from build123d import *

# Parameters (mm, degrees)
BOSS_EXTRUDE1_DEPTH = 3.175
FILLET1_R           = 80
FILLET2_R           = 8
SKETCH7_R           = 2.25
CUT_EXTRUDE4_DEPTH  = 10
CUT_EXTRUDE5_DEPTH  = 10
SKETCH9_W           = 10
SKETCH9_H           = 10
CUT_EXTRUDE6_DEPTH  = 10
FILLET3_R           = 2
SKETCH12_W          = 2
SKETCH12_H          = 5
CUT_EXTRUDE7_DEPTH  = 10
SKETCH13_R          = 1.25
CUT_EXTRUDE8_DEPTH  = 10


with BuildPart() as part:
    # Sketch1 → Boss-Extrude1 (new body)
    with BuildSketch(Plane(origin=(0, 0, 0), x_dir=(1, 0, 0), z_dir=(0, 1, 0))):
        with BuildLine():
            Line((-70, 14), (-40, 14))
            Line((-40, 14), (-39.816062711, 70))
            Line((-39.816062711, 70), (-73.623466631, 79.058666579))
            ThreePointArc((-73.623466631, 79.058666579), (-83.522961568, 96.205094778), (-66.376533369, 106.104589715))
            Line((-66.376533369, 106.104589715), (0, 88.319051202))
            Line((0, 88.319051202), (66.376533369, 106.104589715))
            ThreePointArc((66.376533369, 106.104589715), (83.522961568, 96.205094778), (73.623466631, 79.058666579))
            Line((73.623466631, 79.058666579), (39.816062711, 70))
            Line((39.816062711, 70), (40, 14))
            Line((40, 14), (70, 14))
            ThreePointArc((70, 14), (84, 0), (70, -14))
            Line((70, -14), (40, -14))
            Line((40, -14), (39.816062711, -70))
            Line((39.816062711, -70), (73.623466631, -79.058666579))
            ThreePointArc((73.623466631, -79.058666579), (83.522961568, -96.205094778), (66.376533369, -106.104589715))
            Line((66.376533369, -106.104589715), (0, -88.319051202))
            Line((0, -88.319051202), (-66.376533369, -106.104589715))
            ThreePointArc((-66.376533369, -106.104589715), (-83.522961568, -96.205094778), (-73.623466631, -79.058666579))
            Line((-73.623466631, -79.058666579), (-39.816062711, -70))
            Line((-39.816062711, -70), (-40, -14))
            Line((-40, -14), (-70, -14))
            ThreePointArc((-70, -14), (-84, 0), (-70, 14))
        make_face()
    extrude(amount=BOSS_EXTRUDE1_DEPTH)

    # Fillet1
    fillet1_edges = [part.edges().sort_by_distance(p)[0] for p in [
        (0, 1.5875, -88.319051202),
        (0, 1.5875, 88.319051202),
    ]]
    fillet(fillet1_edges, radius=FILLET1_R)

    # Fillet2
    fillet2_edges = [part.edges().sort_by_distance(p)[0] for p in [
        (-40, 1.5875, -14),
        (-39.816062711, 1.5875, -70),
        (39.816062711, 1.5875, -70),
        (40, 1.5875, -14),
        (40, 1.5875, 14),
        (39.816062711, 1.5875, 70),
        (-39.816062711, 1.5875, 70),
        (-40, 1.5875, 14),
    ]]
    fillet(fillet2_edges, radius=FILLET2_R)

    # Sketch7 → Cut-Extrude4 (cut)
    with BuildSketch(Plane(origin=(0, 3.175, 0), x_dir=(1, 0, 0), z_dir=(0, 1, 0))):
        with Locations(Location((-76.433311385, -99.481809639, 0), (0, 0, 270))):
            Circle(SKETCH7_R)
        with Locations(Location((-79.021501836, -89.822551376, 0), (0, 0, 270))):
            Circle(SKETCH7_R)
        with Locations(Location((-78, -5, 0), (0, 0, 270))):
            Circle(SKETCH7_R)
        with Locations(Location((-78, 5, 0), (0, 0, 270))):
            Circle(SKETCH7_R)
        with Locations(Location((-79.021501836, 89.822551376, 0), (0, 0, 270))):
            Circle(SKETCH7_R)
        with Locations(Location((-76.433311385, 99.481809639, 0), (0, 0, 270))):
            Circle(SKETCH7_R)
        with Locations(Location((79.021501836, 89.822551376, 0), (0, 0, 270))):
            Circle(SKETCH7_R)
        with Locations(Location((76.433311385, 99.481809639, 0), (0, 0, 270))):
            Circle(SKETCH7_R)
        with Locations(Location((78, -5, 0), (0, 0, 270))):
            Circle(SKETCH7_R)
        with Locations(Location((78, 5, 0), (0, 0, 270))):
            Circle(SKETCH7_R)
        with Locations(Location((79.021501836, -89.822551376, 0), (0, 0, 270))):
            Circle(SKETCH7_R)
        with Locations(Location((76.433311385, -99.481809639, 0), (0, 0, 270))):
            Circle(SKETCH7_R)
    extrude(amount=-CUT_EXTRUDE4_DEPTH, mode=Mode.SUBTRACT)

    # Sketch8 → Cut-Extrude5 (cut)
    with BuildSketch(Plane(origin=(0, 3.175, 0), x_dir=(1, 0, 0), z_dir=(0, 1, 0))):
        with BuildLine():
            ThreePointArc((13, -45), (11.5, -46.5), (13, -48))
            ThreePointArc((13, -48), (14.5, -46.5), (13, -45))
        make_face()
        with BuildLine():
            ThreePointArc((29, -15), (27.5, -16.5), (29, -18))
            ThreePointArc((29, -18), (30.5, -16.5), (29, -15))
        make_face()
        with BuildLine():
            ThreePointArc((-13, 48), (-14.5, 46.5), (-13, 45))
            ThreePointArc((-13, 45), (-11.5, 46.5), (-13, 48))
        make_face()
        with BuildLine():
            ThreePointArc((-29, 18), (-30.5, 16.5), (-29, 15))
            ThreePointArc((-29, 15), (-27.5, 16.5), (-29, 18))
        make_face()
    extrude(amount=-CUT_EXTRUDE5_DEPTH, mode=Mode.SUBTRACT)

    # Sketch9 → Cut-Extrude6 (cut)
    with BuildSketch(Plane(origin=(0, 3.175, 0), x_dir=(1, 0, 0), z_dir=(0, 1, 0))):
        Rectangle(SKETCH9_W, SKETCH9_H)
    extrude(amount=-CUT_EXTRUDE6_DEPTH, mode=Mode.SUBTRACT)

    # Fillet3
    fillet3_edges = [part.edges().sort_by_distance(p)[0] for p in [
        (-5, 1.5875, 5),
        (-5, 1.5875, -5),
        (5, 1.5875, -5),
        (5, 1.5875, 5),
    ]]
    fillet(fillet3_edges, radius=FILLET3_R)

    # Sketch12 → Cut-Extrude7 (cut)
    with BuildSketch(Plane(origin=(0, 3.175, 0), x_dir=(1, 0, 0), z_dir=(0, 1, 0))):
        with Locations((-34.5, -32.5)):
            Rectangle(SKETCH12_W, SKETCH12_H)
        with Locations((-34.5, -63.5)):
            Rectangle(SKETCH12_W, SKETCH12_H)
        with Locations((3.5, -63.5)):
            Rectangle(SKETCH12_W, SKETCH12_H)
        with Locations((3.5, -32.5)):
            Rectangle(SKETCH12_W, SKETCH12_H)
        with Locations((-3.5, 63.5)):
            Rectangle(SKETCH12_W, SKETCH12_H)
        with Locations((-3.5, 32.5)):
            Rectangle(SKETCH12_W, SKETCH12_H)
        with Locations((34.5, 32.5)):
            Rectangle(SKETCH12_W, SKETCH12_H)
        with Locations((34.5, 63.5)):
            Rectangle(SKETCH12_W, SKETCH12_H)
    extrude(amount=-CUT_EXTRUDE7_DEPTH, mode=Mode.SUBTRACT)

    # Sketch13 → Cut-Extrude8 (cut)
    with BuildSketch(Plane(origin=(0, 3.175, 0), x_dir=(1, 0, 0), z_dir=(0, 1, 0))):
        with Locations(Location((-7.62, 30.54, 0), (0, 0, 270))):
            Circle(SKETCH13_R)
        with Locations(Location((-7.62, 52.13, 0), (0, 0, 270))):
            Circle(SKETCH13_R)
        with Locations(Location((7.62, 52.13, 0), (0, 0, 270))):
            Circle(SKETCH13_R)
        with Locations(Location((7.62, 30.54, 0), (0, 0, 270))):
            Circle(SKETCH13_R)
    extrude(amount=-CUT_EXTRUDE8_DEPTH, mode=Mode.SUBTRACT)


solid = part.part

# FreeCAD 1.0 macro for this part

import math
import FreeCAD as App
import Part
import Sketcher
from FreeCAD import Vector
Q = App.Units.Quantity


def edges_at(feature, points):
    """Names of the edges that pass closest to the given points."""
    edges = feature.Shape.Edges
    near = lambda p: min(range(len(edges)), key=lambda i: edges[i].distToShape(Part.Vertex(*p))[0])
    return sorted({f"Edge{near(p) + 1}" for p in points})

doc = App.newDocument("Part")
body = doc.addObject("PartDesign::Body", "Body")

# Sketch on XZ plane
sketch1 = doc.addObject("Sketcher::SketchObject", "Sketch")
body.addObject(sketch1)
sketch1.AttachmentSupport = (doc.XZ_Plane, [""])
sketch1.MapMode = "FlatFace"
sketch1.addGeometry([
    Part.LineSegment(Vector(-40, -14, 0), Vector(-70, -14, 0)),  # 0
    Part.ArcOfCircle(Part.Circle(Vector(-70, 0, 0), Vector(0, 0, 1), 14), math.radians(90), math.radians(270)),  # 1
    Part.LineSegment(Vector(-70, 14, 0), Vector(-40, 14, 0)),  # 2
    Part.LineSegment(Vector(-40, 14, 0), Vector(-40, 70, 0)),  # 3
    Part.LineSegment(Vector(-40, 70, 0), Vector(-74, 79, 0)),  # 4
    Part.ArcOfCircle(Part.Circle(Vector(-70, 93, 0), Vector(0, 0, 1), 14), math.radians(75), math.radians(255)),  # 5
    Part.LineSegment(Vector(-66, 106, 0), Vector(0, 88, 0)),  # 6
    Part.LineSegment(Vector(0, 88, 0), Vector(66, 106, 0)),  # 7
    Part.ArcOfCircle(Part.Circle(Vector(70, 93, 0), Vector(0, 0, 1), 14), math.radians(-75), math.radians(105)),  # 8
    Part.LineSegment(Vector(74, 79, 0), Vector(40, 70, 0)),  # 9
    Part.LineSegment(Vector(40, 70, 0), Vector(40, 14, 0)),  # 10
    Part.LineSegment(Vector(40, 14, 0), Vector(70, 14, 0)),  # 11
    Part.ArcOfCircle(Part.Circle(Vector(70, 0, 0), Vector(0, 0, 1), 14), math.radians(-90), math.radians(90)),  # 12
    Part.LineSegment(Vector(70, -14, 0), Vector(40, -14, 0)),  # 13
    Part.LineSegment(Vector(40, -14, 0), Vector(40, -70, 0)),  # 14
    Part.LineSegment(Vector(40, -70, 0), Vector(74, -79, 0)),  # 15
    Part.ArcOfCircle(Part.Circle(Vector(70, -93, 0), Vector(0, 0, 1), 14), math.radians(-105), math.radians(75)),  # 16
    Part.LineSegment(Vector(66, -106, 0), Vector(0, -88, 0)),  # 17
    Part.LineSegment(Vector(0, -88, 0), Vector(-66, -106, 0)),  # 18
    Part.ArcOfCircle(Part.Circle(Vector(-70, -93, 0), Vector(0, 0, 1), 14), math.radians(105), math.radians(285)),  # 19
    Part.LineSegment(Vector(-74, -79, 0), Vector(-40, -70, 0)),  # 20
    Part.LineSegment(Vector(-40, -70, 0), Vector(-40, -14, 0)),  # 21
], False)
sketch1.addConstraint([
    Sketcher.Constraint("Tangent", 0, 2, 1, 2),
    Sketcher.Constraint("Tangent", 1, 1, 2, 1),
    Sketcher.Constraint("Coincident", 2, 2, 3, 1),
    Sketcher.Constraint("Coincident", 3, 2, 4, 1),
    Sketcher.Constraint("Tangent", 4, 2, 5, 2),
    Sketcher.Constraint("Tangent", 5, 1, 6, 1),
    Sketcher.Constraint("Coincident", 6, 2, 7, 1),
    Sketcher.Constraint("Tangent", 7, 2, 8, 2),
    Sketcher.Constraint("Tangent", 8, 1, 9, 1),
    Sketcher.Constraint("Coincident", 9, 2, 10, 1),
    Sketcher.Constraint("Coincident", 10, 2, 11, 1),
    Sketcher.Constraint("Tangent", 11, 2, 12, 2),
    Sketcher.Constraint("Tangent", 12, 1, 13, 1),
    Sketcher.Constraint("Coincident", 13, 2, 14, 1),
    Sketcher.Constraint("Coincident", 14, 2, 15, 1),
    Sketcher.Constraint("Tangent", 15, 2, 16, 2),
    Sketcher.Constraint("Tangent", 16, 1, 17, 1),
    Sketcher.Constraint("Coincident", 17, 2, 18, 1),
    Sketcher.Constraint("Tangent", 18, 2, 19, 2),
    Sketcher.Constraint("Tangent", 19, 1, 20, 1),
    Sketcher.Constraint("Coincident", 20, 2, 21, 1),
    Sketcher.Constraint("Coincident", 21, 2, 0, 1),
    Sketcher.Constraint("Horizontal", 0),
    Sketcher.Constraint("Horizontal", 2),
    Sketcher.Constraint("Horizontal", 11),
    Sketcher.Constraint("Horizontal", 13),
    Sketcher.Constraint("Equal", 1, 5),
    Sketcher.Constraint("Equal", 5, 8),
    Sketcher.Constraint("Equal", 8, 12),
    Sketcher.Constraint("Equal", 12, 16),
    Sketcher.Constraint("Equal", 16, 19),
    Sketcher.Constraint("Symmetric", 1, 3, 12, 3, -1, 1),
    Sketcher.Constraint("Symmetric", 5, 3, 16, 3, -1, 1),
    Sketcher.Constraint("Symmetric", 8, 3, 19, 3, -1, 1),
    Sketcher.Constraint("Symmetric", 3, 2, 14, 2, -1, 1),
    Sketcher.Constraint("Symmetric", 6, 2, 17, 2, -1, 1),
    Sketcher.Constraint("Symmetric", 9, 2, 20, 2, -1, 1),
    Sketcher.Constraint("Symmetric", 5, 3, 8, 3, -2),
    Sketcher.Constraint("Symmetric", 3, 2, 9, 2, -2),
    Sketcher.Constraint("Symmetric", 2, 2, 10, 2, -2),
    Sketcher.Constraint("PointOnObject", 6, 2, -2),
    Sketcher.Constraint("Parallel", 4, 6),
    Sketcher.Constraint("Parallel", 3, 14),
    Sketcher.Constraint("Parallel", 10, 21),
    Sketcher.Constraint("Vertical", 1, 3, 5, 3),
    Sketcher.Constraint("Radius", 1, Q("14 mm")),
    Sketcher.Constraint("DistanceX", 0, 2, 0, 1, Q("30 mm")),
    Sketcher.Constraint("Angle", 4, Q("165 deg")),
    Sketcher.Constraint("Distance", 4, Q("35 mm")),
    Sketcher.Constraint("DistanceX", 1, 3, -1, 1, Q("70 mm")),
    Sketcher.Constraint("DistanceY", -1, 1, 3, 2, Q("70 mm")),
])
pad1 = doc.addObject("PartDesign::Pad", "Pad")
body.addObject(pad1)
pad1.Profile = sketch1
pad1.Length = 3.175
pad1.Reversed = True
doc.recompute()

fillet = doc.addObject("PartDesign::Fillet", "Fillet")
body.addObject(fillet)
fillet.Base = (pad1, edges_at(pad1, [(0, 1.587, -88.319), (0, 1.587, 88.319)]))
fillet.Radius = 80
doc.recompute()

fillet2 = doc.addObject("PartDesign::Fillet", "Fillet001")
body.addObject(fillet2)
fillet2.Base = (fillet, edges_at(fillet, [
    (-40, 1.587, -14),
    (-39.816, 1.587, -70),
    (39.816, 1.587, -70),
    (40, 1.587, -14),
    (40, 1.587, 14),
    (39.816, 1.587, 70),
    (-39.816, 1.587, 70),
    (-40, 1.587, 14),
]))
fillet2.Radius = 8

# Sketch on XZ plane
sketch2 = doc.addObject("Sketcher::SketchObject", "Sketch001")
body.addObject(sketch2)
sketch2.AttachmentSupport = (doc.XZ_Plane, [""])
sketch2.MapMode = "FlatFace"
sketch2.AttachmentOffset = App.Placement(Vector(0, 0, -3.175), App.Rotation())
sketch2.addGeometry([
    Part.Circle(Vector(-76.4, 99.5, 0), Vector(0, 0, 1), 2.2),  # 0
    Part.Circle(Vector(-79, 89.8, 0), Vector(0, 0, 1), 2.2),  # 1
    Part.Circle(Vector(-78, 5, 0), Vector(0, 0, 1), 2.2),  # 2
    Part.Circle(Vector(-78, -5, 0), Vector(0, 0, 1), 2.2),  # 3
    Part.Circle(Vector(-79, -89.8, 0), Vector(0, 0, 1), 2.2),  # 4
    Part.Circle(Vector(-76.4, -99.5, 0), Vector(0, 0, 1), 2.2),  # 5
    Part.Circle(Vector(79, -89.8, 0), Vector(0, 0, 1), 2.2),  # 6
    Part.Circle(Vector(76.4, -99.5, 0), Vector(0, 0, 1), 2.2),  # 7
    Part.Circle(Vector(78, 5, 0), Vector(0, 0, 1), 2.2),  # 8
    Part.Circle(Vector(78, -5, 0), Vector(0, 0, 1), 2.2),  # 9
    Part.Circle(Vector(79, 89.8, 0), Vector(0, 0, 1), 2.2),  # 10
    Part.Circle(Vector(76.4, 99.5, 0), Vector(0, 0, 1), 2.2),  # 11
], False)
sketch2.addConstraint([
    Sketcher.Constraint("Equal", 0, 1),
    Sketcher.Constraint("Equal", 1, 2),
    Sketcher.Constraint("Equal", 2, 3),
    Sketcher.Constraint("Equal", 3, 4),
    Sketcher.Constraint("Equal", 4, 5),
    Sketcher.Constraint("Equal", 5, 6),
    Sketcher.Constraint("Equal", 6, 7),
    Sketcher.Constraint("Equal", 7, 8),
    Sketcher.Constraint("Equal", 8, 9),
    Sketcher.Constraint("Equal", 9, 10),
    Sketcher.Constraint("Equal", 10, 11),
    Sketcher.Constraint("Symmetric", 1, 3, 6, 3, -1, 1),
    Sketcher.Constraint("Symmetric", 0, 3, 7, 3, -1, 1),
    Sketcher.Constraint("Symmetric", 3, 3, 8, 3, -1, 1),
    Sketcher.Constraint("Symmetric", 2, 3, 9, 3, -1, 1),
    Sketcher.Constraint("Symmetric", 4, 3, 10, 3, -1, 1),
    Sketcher.Constraint("Symmetric", 5, 3, 11, 3, -1, 1),
    Sketcher.Constraint("Symmetric", 4, 3, 6, 3, -2),
    Sketcher.Constraint("Symmetric", 5, 3, 7, 3, -2),
    Sketcher.Constraint("Symmetric", 2, 3, 8, 3, -2),
    Sketcher.Constraint("Diameter", 0, Q("4.5 mm")),
    Sketcher.Constraint("DistanceX", 2, 3, -1, 1, Q("78 mm")),
    Sketcher.Constraint("DistanceY", -1, 1, 2, 3, Q("5 mm")),
    Sketcher.Constraint("DistanceX", 1, 3, -1, 1, Q("79.021502 mm")),
    Sketcher.Constraint("DistanceX", 0, 3, -1, 1, Q("76.433311 mm")),
    Sketcher.Constraint("DistanceY", -1, 1, 0, 3, Q("99.48181 mm")),
    Sketcher.Constraint("DistanceY", -1, 1, 1, 3, Q("89.822551 mm")),
])
pocket1 = doc.addObject("PartDesign::Pocket", "Pocket")
body.addObject(pocket1)
pocket1.Profile = sketch2
pocket1.Length = 10
pocket1.Reversed = True

# Sketch on XZ plane
sketch3 = doc.addObject("Sketcher::SketchObject", "Sketch002")
body.addObject(sketch3)
sketch3.AttachmentSupport = (doc.XZ_Plane, [""])
sketch3.MapMode = "FlatFace"
sketch3.AttachmentOffset = App.Placement(Vector(0, 0, -3.175), App.Rotation())
sketch3.addGeometry([
    Part.Circle(Vector(13, 46.5, 0), Vector(0, 0, 1), 1.5),
    Part.Circle(Vector(29, 16.5, 0), Vector(0, 0, 1), 1.5),
    Part.Circle(Vector(-13, -46.5, 0), Vector(0, 0, 1), 1.5),
    Part.Circle(Vector(-29, -16.5, 0), Vector(0, 0, 1), 1.5),
], False)
sketch3.addConstraint([
    Sketcher.Constraint("Equal", 0, 1),
    Sketcher.Constraint("Equal", 1, 2),
    Sketcher.Constraint("Equal", 2, 3),
    Sketcher.Constraint("Symmetric", 0, 3, 2, 3, -1, 1),
    Sketcher.Constraint("Symmetric", 1, 3, 3, 3, -1, 1),
    Sketcher.Constraint("Diameter", 0, Q("3 mm")),
    Sketcher.Constraint("DistanceX", -1, 1, 0, 3, Q("13 mm")),
    Sketcher.Constraint("DistanceX", -1, 1, 1, 3, Q("29 mm")),
    Sketcher.Constraint("DistanceY", 1, 3, 0, 3, Q("30 mm")),
    Sketcher.Constraint("DistanceY", 2, 3, 1, 3, Q("63 mm")),
])
pocket2 = doc.addObject("PartDesign::Pocket", "Pocket001")
body.addObject(pocket2)
pocket2.Profile = sketch3
pocket2.Length = 10
pocket2.Reversed = True

# Sketch on XZ plane
sketch4 = doc.addObject("Sketcher::SketchObject", "Sketch003")
body.addObject(sketch4)
sketch4.AttachmentSupport = (doc.XZ_Plane, [""])
sketch4.MapMode = "FlatFace"
sketch4.AttachmentOffset = App.Placement(Vector(0, 0, -3.175), App.Rotation())
sketch4.addGeometry([
    Part.LineSegment(Vector(-5, -5, 0), Vector(-5, 5, 0)),
    Part.LineSegment(Vector(-5, 5, 0), Vector(5, 5, 0)),
    Part.LineSegment(Vector(5, 5, 0), Vector(5, -5, 0)),
    Part.LineSegment(Vector(5, -5, 0), Vector(-5, -5, 0)),
], False)
sketch4.addConstraint([
    Sketcher.Constraint("Coincident", 0, 2, 1, 1),
    Sketcher.Constraint("Coincident", 1, 2, 2, 1),
    Sketcher.Constraint("Coincident", 2, 2, 3, 1),
    Sketcher.Constraint("Coincident", 3, 2, 0, 1),
    Sketcher.Constraint("Vertical", 0),
    Sketcher.Constraint("Horizontal", 1),
    Sketcher.Constraint("Vertical", 2),
    Sketcher.Constraint("Horizontal", 3),
    Sketcher.Constraint("Symmetric", 0, 2, 2, 2, -1, 1),
    Sketcher.Constraint("Equal", 3, 0),
    Sketcher.Constraint("DistanceX", 1, 1, 1, 2, Q("10 mm")),
])
pocket3 = doc.addObject("PartDesign::Pocket", "Pocket002")
body.addObject(pocket3)
pocket3.Profile = sketch4
pocket3.Length = 10
pocket3.Reversed = True
doc.recompute()

fillet3 = doc.addObject("PartDesign::Fillet", "Fillet002")
body.addObject(fillet3)
fillet3.Base = (pocket3, edges_at(pocket3, [
    (-5, 1.587, 5),
    (-5, 1.587, -5),
    (5, 1.587, -5),
    (5, 1.587, 5),
]))
fillet3.Radius = 2

# Sketch on XZ plane
sketch5 = doc.addObject("Sketcher::SketchObject", "Sketch004")
body.addObject(sketch5)
sketch5.AttachmentSupport = (doc.XZ_Plane, [""])
sketch5.MapMode = "FlatFace"
sketch5.AttachmentOffset = App.Placement(Vector(0, 0, -3.175), App.Rotation())
sketch5.addGeometry([
    Part.LineSegment(Vector(-35.5, 30, 0), Vector(-35.5, 35, 0)),  # 0
    Part.LineSegment(Vector(-35.5, 35, 0), Vector(-33.5, 35, 0)),  # 1
    Part.LineSegment(Vector(-33.5, 35, 0), Vector(-33.5, 30, 0)),  # 2
    Part.LineSegment(Vector(-33.5, 30, 0), Vector(-35.5, 30, 0)),  # 3
    Part.LineSegment(Vector(-35.5, 61, 0), Vector(-35.5, 66, 0)),  # 4
    Part.LineSegment(Vector(-35.5, 66, 0), Vector(-33.5, 66, 0)),  # 5
    Part.LineSegment(Vector(-33.5, 66, 0), Vector(-33.5, 61, 0)),  # 6
    Part.LineSegment(Vector(-33.5, 61, 0), Vector(-35.5, 61, 0)),  # 7
    Part.LineSegment(Vector(2.5, 61, 0), Vector(2.5, 66, 0)),  # 8
    Part.LineSegment(Vector(2.5, 66, 0), Vector(4.5, 66, 0)),  # 9
    Part.LineSegment(Vector(4.5, 66, 0), Vector(4.5, 61, 0)),  # 10
    Part.LineSegment(Vector(4.5, 61, 0), Vector(2.5, 61, 0)),  # 11
    Part.LineSegment(Vector(2.5, 30, 0), Vector(2.5, 35, 0)),  # 12
    Part.LineSegment(Vector(2.5, 35, 0), Vector(4.5, 35, 0)),  # 13
    Part.LineSegment(Vector(4.5, 35, 0), Vector(4.5, 30, 0)),  # 14
    Part.LineSegment(Vector(4.5, 30, 0), Vector(2.5, 30, 0)),  # 15
    Part.LineSegment(Vector(-4.5, -66, 0), Vector(-4.5, -61, 0)),  # 16
    Part.LineSegment(Vector(-4.5, -61, 0), Vector(-2.5, -61, 0)),  # 17
    Part.LineSegment(Vector(-2.5, -61, 0), Vector(-2.5, -66, 0)),  # 18
    Part.LineSegment(Vector(-2.5, -66, 0), Vector(-4.5, -66, 0)),  # 19
    Part.LineSegment(Vector(-4.5, -35, 0), Vector(-4.5, -30, 0)),  # 20
    Part.LineSegment(Vector(-4.5, -30, 0), Vector(-2.5, -30, 0)),  # 21
    Part.LineSegment(Vector(-2.5, -30, 0), Vector(-2.5, -35, 0)),  # 22
    Part.LineSegment(Vector(-2.5, -35, 0), Vector(-4.5, -35, 0)),  # 23
    Part.LineSegment(Vector(33.5, -35, 0), Vector(33.5, -30, 0)),  # 24
    Part.LineSegment(Vector(33.5, -30, 0), Vector(35.5, -30, 0)),  # 25
    Part.LineSegment(Vector(35.5, -30, 0), Vector(35.5, -35, 0)),  # 26
    Part.LineSegment(Vector(35.5, -35, 0), Vector(33.5, -35, 0)),  # 27
    Part.LineSegment(Vector(33.5, -66, 0), Vector(33.5, -61, 0)),  # 28
    Part.LineSegment(Vector(33.5, -61, 0), Vector(35.5, -61, 0)),  # 29
    Part.LineSegment(Vector(35.5, -61, 0), Vector(35.5, -66, 0)),  # 30
    Part.LineSegment(Vector(35.5, -66, 0), Vector(33.5, -66, 0)),  # 31
], False)
sketch5.addConstraint([
    Sketcher.Constraint("Coincident", 0, 2, 1, 1),
    Sketcher.Constraint("Coincident", 1, 2, 2, 1),
    Sketcher.Constraint("Coincident", 2, 2, 3, 1),
    Sketcher.Constraint("Coincident", 3, 2, 0, 1),
    Sketcher.Constraint("Coincident", 4, 2, 5, 1),
    Sketcher.Constraint("Coincident", 5, 2, 6, 1),
    Sketcher.Constraint("Coincident", 6, 2, 7, 1),
    Sketcher.Constraint("Coincident", 7, 2, 4, 1),
    Sketcher.Constraint("Coincident", 8, 2, 9, 1),
    Sketcher.Constraint("Coincident", 9, 2, 10, 1),
    Sketcher.Constraint("Coincident", 10, 2, 11, 1),
    Sketcher.Constraint("Coincident", 11, 2, 8, 1),
    Sketcher.Constraint("Coincident", 12, 2, 13, 1),
    Sketcher.Constraint("Coincident", 13, 2, 14, 1),
    Sketcher.Constraint("Coincident", 14, 2, 15, 1),
    Sketcher.Constraint("Coincident", 15, 2, 12, 1),
    Sketcher.Constraint("Coincident", 16, 2, 17, 1),
    Sketcher.Constraint("Coincident", 17, 2, 18, 1),
    Sketcher.Constraint("Coincident", 18, 2, 19, 1),
    Sketcher.Constraint("Coincident", 19, 2, 16, 1),
    Sketcher.Constraint("Coincident", 20, 2, 21, 1),
    Sketcher.Constraint("Coincident", 21, 2, 22, 1),
    Sketcher.Constraint("Coincident", 22, 2, 23, 1),
    Sketcher.Constraint("Coincident", 23, 2, 20, 1),
    Sketcher.Constraint("Coincident", 24, 2, 25, 1),
    Sketcher.Constraint("Coincident", 25, 2, 26, 1),
    Sketcher.Constraint("Coincident", 26, 2, 27, 1),
    Sketcher.Constraint("Coincident", 27, 2, 24, 1),
    Sketcher.Constraint("Coincident", 28, 2, 29, 1),
    Sketcher.Constraint("Coincident", 29, 2, 30, 1),
    Sketcher.Constraint("Coincident", 30, 2, 31, 1),
    Sketcher.Constraint("Coincident", 31, 2, 28, 1),
    Sketcher.Constraint("Vertical", 0),
    Sketcher.Constraint("Horizontal", 1),
    Sketcher.Constraint("Vertical", 2),
    Sketcher.Constraint("Horizontal", 3),
    Sketcher.Constraint("Vertical", 4),
    Sketcher.Constraint("Horizontal", 5),
    Sketcher.Constraint("Vertical", 6),
    Sketcher.Constraint("Horizontal", 7),
    Sketcher.Constraint("Vertical", 8),
    Sketcher.Constraint("Horizontal", 9),
    Sketcher.Constraint("Vertical", 10),
    Sketcher.Constraint("Horizontal", 11),
    Sketcher.Constraint("Vertical", 12),
    Sketcher.Constraint("Horizontal", 13),
    Sketcher.Constraint("Vertical", 14),
    Sketcher.Constraint("Horizontal", 15),
    Sketcher.Constraint("Vertical", 16),
    Sketcher.Constraint("Horizontal", 17),
    Sketcher.Constraint("Vertical", 18),
    Sketcher.Constraint("Horizontal", 19),
    Sketcher.Constraint("Vertical", 20),
    Sketcher.Constraint("Horizontal", 21),
    Sketcher.Constraint("Vertical", 22),
    Sketcher.Constraint("Horizontal", 23),
    Sketcher.Constraint("Vertical", 24),
    Sketcher.Constraint("Horizontal", 25),
    Sketcher.Constraint("Vertical", 26),
    Sketcher.Constraint("Horizontal", 27),
    Sketcher.Constraint("Vertical", 28),
    Sketcher.Constraint("Horizontal", 29),
    Sketcher.Constraint("Vertical", 30),
    Sketcher.Constraint("Horizontal", 31),
    Sketcher.Constraint("Symmetric", 10, 2, 16, 2, -1, 1),
    Sketcher.Constraint("Symmetric", 8, 2, 18, 2, -1, 1),
    Sketcher.Constraint("Symmetric", 14, 2, 20, 2, -1, 1),
    Sketcher.Constraint("Symmetric", 12, 2, 22, 2, -1, 1),
    Sketcher.Constraint("Symmetric", 2, 2, 24, 2, -1, 1),
    Sketcher.Constraint("Symmetric", 0, 2, 26, 2, -1, 1),
    Sketcher.Constraint("Symmetric", 6, 2, 28, 2, -1, 1),
    Sketcher.Constraint("Symmetric", 4, 2, 30, 2, -1, 1),
    Sketcher.Constraint("Horizontal", 5, 2, 8, 2),
    Sketcher.Constraint("Horizontal", 7, 2, 10, 2),
    Sketcher.Constraint("Horizontal", 1, 2, 12, 2),
    Sketcher.Constraint("Horizontal", 3, 2, 14, 2),
    Sketcher.Constraint("Vertical", 3, 2, 4, 2),
    Sketcher.Constraint("Vertical", 2, 2, 5, 2),
    Sketcher.Constraint("Vertical", 11, 2, 12, 2),
    Sketcher.Constraint("Vertical", 10, 2, 13, 2),
    Sketcher.Constraint("Equal", 7, 9),
    Sketcher.Constraint("Equal", 2, 4),
    Sketcher.Constraint("DistanceX", 1, 1, 1, 2, Q("2 mm")),
    Sketcher.Constraint("DistanceY", 0, 1, 0, 2, Q("5 mm")),
    Sketcher.Constraint("DistanceY", -1, 1, 0, 2, Q("35 mm")),
    Sketcher.Constraint("DistanceY", -1, 1, 4, 2, Q("66 mm")),
    Sketcher.Constraint("DistanceX", 5, 2, 8, 2, Q("36 mm")),
    Sketcher.Constraint("DistanceX", 16, 2, 15, 2, Q("7 mm")),
])
pocket4 = doc.addObject("PartDesign::Pocket", "Pocket003")
body.addObject(pocket4)
pocket4.Profile = sketch5
pocket4.Length = 10
pocket4.Reversed = True

# Sketch on XZ plane
sketch6 = doc.addObject("Sketcher::SketchObject", "Sketch005")
body.addObject(sketch6)
sketch6.AttachmentSupport = (doc.XZ_Plane, [""])
sketch6.MapMode = "FlatFace"
sketch6.AttachmentOffset = App.Placement(Vector(0, 0, -3.175), App.Rotation())
sketch6.addGeometry([
    Part.Circle(Vector(-7.6, -30.5, 0), Vector(0, 0, 1), 1.2),
    Part.Circle(Vector(-7.6, -52.1, 0), Vector(0, 0, 1), 1.2),
    Part.Circle(Vector(7.6, -52.1, 0), Vector(0, 0, 1), 1.2),
    Part.Circle(Vector(7.6, -30.5, 0), Vector(0, 0, 1), 1.2),
], False)
sketch6.addConstraint([
    Sketcher.Constraint("Equal", 0, 1),
    Sketcher.Constraint("Equal", 1, 2),
    Sketcher.Constraint("Equal", 2, 3),
    Sketcher.Constraint("Symmetric", 1, 3, 2, 3, -2),
    Sketcher.Constraint("Symmetric", 0, 3, 3, 3, -2),
    Sketcher.Constraint("Vertical", 0, 3, 1, 3),
    Sketcher.Constraint("Diameter", 0, Q("2.5 mm")),
    Sketcher.Constraint("DistanceX", 0, 3, -1, 1, Q("7.62 mm")),
    Sketcher.Constraint("DistanceY", 0, 3, -1, 1, Q("30.54 mm")),
    Sketcher.Constraint("DistanceY", 1, 3, -1, 1, Q("52.13 mm")),
])
pocket5 = doc.addObject("PartDesign::Pocket", "Pocket004")
body.addObject(pocket5)
pocket5.Profile = sketch6
pocket5.Length = 10
pocket5.Reversed = True

doc.recompute()
